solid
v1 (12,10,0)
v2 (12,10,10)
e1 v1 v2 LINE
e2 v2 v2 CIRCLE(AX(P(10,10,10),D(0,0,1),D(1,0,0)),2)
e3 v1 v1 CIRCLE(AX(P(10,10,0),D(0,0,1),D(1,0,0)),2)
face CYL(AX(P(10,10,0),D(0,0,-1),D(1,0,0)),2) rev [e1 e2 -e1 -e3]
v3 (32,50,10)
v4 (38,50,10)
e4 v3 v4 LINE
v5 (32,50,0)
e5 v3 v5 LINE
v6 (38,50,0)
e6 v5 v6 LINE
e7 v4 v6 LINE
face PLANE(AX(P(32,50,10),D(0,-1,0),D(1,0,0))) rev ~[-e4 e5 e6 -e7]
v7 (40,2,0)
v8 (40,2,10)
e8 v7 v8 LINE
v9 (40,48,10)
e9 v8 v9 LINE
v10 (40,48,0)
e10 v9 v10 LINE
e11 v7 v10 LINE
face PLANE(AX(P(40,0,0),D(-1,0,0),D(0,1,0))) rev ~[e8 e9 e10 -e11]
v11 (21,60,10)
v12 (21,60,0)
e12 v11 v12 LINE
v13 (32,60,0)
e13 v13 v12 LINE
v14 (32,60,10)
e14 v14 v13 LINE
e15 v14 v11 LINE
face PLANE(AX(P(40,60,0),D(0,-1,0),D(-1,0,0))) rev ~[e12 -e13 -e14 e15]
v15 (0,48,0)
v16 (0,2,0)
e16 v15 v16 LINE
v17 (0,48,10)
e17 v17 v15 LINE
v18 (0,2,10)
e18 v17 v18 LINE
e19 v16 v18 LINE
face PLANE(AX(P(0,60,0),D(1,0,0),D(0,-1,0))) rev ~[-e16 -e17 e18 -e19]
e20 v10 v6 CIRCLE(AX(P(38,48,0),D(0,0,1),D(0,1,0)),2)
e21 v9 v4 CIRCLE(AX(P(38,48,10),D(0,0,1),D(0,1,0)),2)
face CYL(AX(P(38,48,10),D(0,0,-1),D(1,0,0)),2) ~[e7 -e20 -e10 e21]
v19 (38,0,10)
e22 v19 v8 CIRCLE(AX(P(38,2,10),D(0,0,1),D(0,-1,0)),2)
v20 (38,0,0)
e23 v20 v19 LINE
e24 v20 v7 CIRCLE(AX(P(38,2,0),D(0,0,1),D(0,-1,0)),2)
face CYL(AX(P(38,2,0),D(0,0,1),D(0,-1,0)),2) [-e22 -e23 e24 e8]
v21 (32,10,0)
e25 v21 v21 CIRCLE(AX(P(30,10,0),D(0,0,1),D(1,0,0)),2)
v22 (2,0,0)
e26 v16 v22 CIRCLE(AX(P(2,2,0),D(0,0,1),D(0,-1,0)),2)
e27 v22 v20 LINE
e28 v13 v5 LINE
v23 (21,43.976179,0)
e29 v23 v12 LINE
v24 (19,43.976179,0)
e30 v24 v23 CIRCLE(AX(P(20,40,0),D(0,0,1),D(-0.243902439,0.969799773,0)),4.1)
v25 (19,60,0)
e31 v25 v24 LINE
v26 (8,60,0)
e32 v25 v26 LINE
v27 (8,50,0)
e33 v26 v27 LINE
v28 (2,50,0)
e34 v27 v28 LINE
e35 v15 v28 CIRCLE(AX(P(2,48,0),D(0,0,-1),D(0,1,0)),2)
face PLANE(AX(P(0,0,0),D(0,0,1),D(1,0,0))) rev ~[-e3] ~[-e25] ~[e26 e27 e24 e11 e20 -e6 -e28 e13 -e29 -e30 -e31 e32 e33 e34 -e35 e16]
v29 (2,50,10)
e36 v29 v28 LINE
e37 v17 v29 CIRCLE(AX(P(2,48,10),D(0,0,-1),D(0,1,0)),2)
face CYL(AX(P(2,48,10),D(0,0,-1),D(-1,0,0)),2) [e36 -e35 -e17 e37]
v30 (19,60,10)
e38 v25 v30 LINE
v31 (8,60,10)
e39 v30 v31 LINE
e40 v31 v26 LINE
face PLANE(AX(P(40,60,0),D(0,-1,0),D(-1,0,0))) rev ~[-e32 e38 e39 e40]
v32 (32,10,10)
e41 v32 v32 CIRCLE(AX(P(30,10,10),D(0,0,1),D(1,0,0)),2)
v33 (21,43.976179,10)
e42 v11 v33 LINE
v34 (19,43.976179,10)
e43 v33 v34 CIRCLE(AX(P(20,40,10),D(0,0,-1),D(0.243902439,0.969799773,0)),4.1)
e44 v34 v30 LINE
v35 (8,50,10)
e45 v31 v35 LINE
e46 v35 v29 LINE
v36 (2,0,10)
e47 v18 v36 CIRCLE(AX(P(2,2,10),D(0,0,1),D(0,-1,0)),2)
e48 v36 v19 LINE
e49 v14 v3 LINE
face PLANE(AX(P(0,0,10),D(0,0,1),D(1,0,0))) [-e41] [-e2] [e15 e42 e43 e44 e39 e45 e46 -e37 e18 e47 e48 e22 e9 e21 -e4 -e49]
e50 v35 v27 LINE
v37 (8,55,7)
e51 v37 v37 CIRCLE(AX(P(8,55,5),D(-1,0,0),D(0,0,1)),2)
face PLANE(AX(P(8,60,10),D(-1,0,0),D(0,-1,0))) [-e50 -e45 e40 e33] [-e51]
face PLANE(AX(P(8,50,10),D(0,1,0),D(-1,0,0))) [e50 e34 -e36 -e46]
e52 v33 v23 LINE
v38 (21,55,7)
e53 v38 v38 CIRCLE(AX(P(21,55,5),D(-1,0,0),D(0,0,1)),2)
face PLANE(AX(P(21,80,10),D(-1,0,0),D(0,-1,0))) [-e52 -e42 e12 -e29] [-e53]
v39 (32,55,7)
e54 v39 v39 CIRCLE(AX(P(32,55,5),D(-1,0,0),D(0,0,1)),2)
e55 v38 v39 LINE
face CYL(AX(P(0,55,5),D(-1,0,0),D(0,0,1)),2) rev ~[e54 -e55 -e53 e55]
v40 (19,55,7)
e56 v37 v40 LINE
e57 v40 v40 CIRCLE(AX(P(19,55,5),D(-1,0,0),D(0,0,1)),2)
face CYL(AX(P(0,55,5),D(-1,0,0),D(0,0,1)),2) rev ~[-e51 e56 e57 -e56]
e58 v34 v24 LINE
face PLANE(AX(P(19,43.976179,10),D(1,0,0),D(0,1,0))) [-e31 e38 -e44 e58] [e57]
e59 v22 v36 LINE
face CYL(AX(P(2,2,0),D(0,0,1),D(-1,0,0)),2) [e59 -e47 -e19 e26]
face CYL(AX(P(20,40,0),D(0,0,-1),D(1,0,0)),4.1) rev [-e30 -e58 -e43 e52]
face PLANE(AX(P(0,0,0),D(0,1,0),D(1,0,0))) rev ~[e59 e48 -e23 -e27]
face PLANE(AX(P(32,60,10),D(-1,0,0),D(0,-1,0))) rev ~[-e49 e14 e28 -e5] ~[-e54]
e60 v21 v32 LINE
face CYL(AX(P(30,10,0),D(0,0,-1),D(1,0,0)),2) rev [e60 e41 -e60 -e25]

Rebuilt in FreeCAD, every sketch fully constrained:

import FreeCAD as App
import Part
import Sketcher

V = App.Vector


def edges_at(feature, points):
    """Names of the edges that pass closest to the given points."""
    edges = feature.Shape.Edges
    near = lambda p: min(range(len(edges)), key=lambda i: edges[i].distToShape(Part.Vertex(*p))[0])
    return sorted({f"Edge{near(p) + 1}" for p in points})


def add_polygon(sketch, points):
    """Adds a closed chain of lines whose ends are joined by coincident constraints."""
    first, n = sketch.GeometryCount, len(points)
    for a, b in zip(points, points[1:] + points[:1]):
        sketch.addGeometry(Part.LineSegment(App.Vector(*a, 0), App.Vector(*b, 0)), False)
    for i in range(n):
        sketch.addConstraint(Sketcher.Constraint("Coincident", first + i, 2, first + (i + 1) % n, 1))

doc = App.newDocument("Part")
params = doc.addObject("Spreadsheet::Sheet", "Params")
for row, (alias, value) in enumerate([
    ("sketch1_diameter", "4 mm"),
    ("sketch1_diameter2", "8.2 mm"),
    ("sketch1_width", "40 mm"),
    ("pad1_length", "10 mm"),
    ("sketch2_width", "8 mm"),
    ("sketch2_width2", "2 mm"),
    ("sketch2_height", "10 mm"),
    ("sketch2_height2", "40 mm"),
    ("pocket1_length", "10 mm"),
    ("sketch3_diameter", "4 mm"),
    ("fillet_radius", "2 mm"),
], start=1):
    params.set(f"A{row}", alias)
    params.set(f"B{row}", "=" + value)
    params.setAlias(f"B{row}", alias)

body = doc.addObject("PartDesign::Body", "Body")

sketch1 = body.newObject("Sketcher::SketchObject", "Sketch")
sketch1.AttachmentSupport = (doc.getObject("XY_Plane"), [""])
sketch1.MapMode = "FlatFace"
add_polygon(sketch1, [(0, 60), (0, 0), (40, 0), (40, 60)])
sketch1.addGeometry(Part.Circle(V(10, 10, 0), V(0, 0, 1), 2), False)
sketch1.addGeometry(Part.Circle(V(30, 10, 0), V(0, 0, 1), 2), False)
sketch1.addGeometry(Part.Circle(V(20, 40, 0), V(0, 0, 1), 4.1), False)
sketch1.addConstraint(Sketcher.Constraint("Vertical", 0))
sketch1.addConstraint(Sketcher.Constraint("Horizontal", 1))
sketch1.addConstraint(Sketcher.Constraint("Vertical", 2))
sketch1.addConstraint(Sketcher.Constraint("Horizontal", 3))
sketch1.addConstraint(Sketcher.Constraint("Coincident", 0, 2, -1, 1))
sketch1.addConstraint(Sketcher.Constraint("Equal", 4, 5))
sketch1.addConstraint(Sketcher.Constraint("Horizontal", 4, 3, 5, 3))
sketch1.addConstraint(Sketcher.Constraint("Diameter", 4, 4.0))
sketch1.addConstraint(Sketcher.Constraint("Diameter", 6, 8.2))
sketch1.addConstraint(Sketcher.Constraint("DistanceX", 1, 1, 1, 2, 40.0))
sketch1.addConstraint(Sketcher.Constraint("DistanceX", -1, 1, 4, 3, 10.0))
sketch1.addConstraint(Sketcher.Constraint("DistanceY", -1, 1, 4, 3, 10.0))
sketch1.addConstraint(Sketcher.Constraint("DistanceX", -1, 1, 6, 3, 20.0))
sketch1.addConstraint(Sketcher.Constraint("DistanceY", -1, 1, 6, 3, 40.0))
sketch1.addConstraint(Sketcher.Constraint("DistanceX", 4, 3, 5, 3, 20.0))
sketch1.addConstraint(Sketcher.Constraint("DistanceY", 6, 3, 2, 2, 20.0))
sketch1.setExpression("Constraints[11]", "Params.sketch1_diameter")
sketch1.setExpression("Constraints[12]", "Params.sketch1_diameter2")
sketch1.setExpression("Constraints[13]", "Params.sketch1_width")
pad1 = body.newObject("PartDesign::Pad", "Pad")
pad1.Profile = sketch1
pad1.setExpression("Length", "Params.pad1_length")

sketch2 = body.newObject("Sketcher::SketchObject", "Sketch001")
sketch2.AttachmentSupport = (doc.getObject("XY_Plane"), [""])
sketch2.MapMode = "FlatFace"
sketch2.AttachmentOffset = App.Placement(V(0, 0, 10), App.Rotation())
add_polygon(sketch2, [(8, 60), (0, 60), (0, 50), (8, 50)])
add_polygon(sketch2, [(32, 50), (40, 50), (40, 60), (32, 60)])
add_polygon(sketch2, [(21, 80), (19, 80), (19, 40), (21, 40)])
sketch2.addConstraint(Sketcher.Constraint("Horizontal", 0))
sketch2.addConstraint(Sketcher.Constraint("Vertical", 1))
sketch2.addConstraint(Sketcher.Constraint("Horizontal", 2))
sketch2.addConstraint(Sketcher.Constraint("Vertical", 3))
sketch2.addConstraint(Sketcher.Constraint("Horizontal", 4))
sketch2.addConstraint(Sketcher.Constraint("Vertical", 5))
sketch2.addConstraint(Sketcher.Constraint("Horizontal", 6))
sketch2.addConstraint(Sketcher.Constraint("Vertical", 7))
sketch2.addConstraint(Sketcher.Constraint("Horizontal", 8))
sketch2.addConstraint(Sketcher.Constraint("Vertical", 9))
sketch2.addConstraint(Sketcher.Constraint("Horizontal", 10))
sketch2.addConstraint(Sketcher.Constraint("Vertical", 11))
sketch2.addConstraint(Sketcher.Constraint("PointOnObject", 0, 2, -2))
sketch2.addConstraint(Sketcher.Constraint("Horizontal", 2, 2, 4, 2))
sketch2.addConstraint(Sketcher.Constraint("Horizontal", 3, 2, 5, 2))
sketch2.addConstraint(Sketcher.Constraint("Equal", 2, 4))
sketch2.addConstraint(Sketcher.Constraint("DistanceX", 0, 2, 0, 1, 8.0))
sketch2.addConstraint(Sketcher.Constraint("DistanceX", 8, 2, 8, 1, 2.0))
sketch2.addConstraint(Sketcher.Constraint("DistanceY", 1, 2, 1, 1, 10.0))
sketch2.addConstraint(Sketcher.Constraint("DistanceY", 9, 2, 2, 2, 10.0))
sketch2.addConstraint(Sketcher.Constraint("DistanceY", 9, 2, 9, 1, 40.0))
sketch2.addConstraint(Sketcher.Constraint("DistanceY", -1, 1, 0, 2, 60.0))
sketch2.addConstraint(Sketcher.Constraint("DistanceX", -1, 1, 4, 2, 40.0))
sketch2.addConstraint(Sketcher.Constraint("DistanceX", -1, 1, 8, 2, 19.0))
sketch2.setExpression("Constraints[28]", "Params.sketch2_width")
sketch2.setExpression("Constraints[29]", "Params.sketch2_width2")
sketch2.setExpression("Constraints[30]", "Params.sketch2_height")
sketch2.setExpression("Constraints[32]", "Params.sketch2_height2")
pocket1 = body.newObject("PartDesign::Pocket", "Pocket")
pocket1.Profile = sketch2
pocket1.setExpression("Length", "Params.pocket1_length")

sketch3 = body.newObject("Sketcher::SketchObject", "Sketch002")
sketch3.AttachmentSupport = (doc.getObject("YZ_Plane"), [""])
sketch3.MapMode = "FlatFace"
sketch3.addGeometry(Part.Circle(V(55, 5, 0), V(0, 0, 1), 2), False)
sketch3.addConstraint(Sketcher.Constraint("Diameter", 0, 4.0))
sketch3.addConstraint(Sketcher.Constraint("DistanceY", -1, 1, 0, 3, 5.0))
sketch3.addConstraint(Sketcher.Constraint("DistanceX", -1, 1, 0, 3, 55.0))
sketch3.setExpression("Constraints[0]", "Params.sketch3_diameter")
pocket2 = body.newObject("PartDesign::Pocket", "Pocket001")
pocket2.Profile = sketch3
pocket2.Type = "ThroughAll"
pocket2.Reversed = True
doc.recompute()

fillet = body.newObject("PartDesign::Fillet", "Fillet")
fillet.Base = (pocket2, edges_at(pocket2, [
    (0, 0, 5),
    (40, 0, 5),
    (40, 50, 5),
    (0, 50, 5),
]))
fillet.setExpression("Radius", "Params.fillet_radius")

doc.recompute()
